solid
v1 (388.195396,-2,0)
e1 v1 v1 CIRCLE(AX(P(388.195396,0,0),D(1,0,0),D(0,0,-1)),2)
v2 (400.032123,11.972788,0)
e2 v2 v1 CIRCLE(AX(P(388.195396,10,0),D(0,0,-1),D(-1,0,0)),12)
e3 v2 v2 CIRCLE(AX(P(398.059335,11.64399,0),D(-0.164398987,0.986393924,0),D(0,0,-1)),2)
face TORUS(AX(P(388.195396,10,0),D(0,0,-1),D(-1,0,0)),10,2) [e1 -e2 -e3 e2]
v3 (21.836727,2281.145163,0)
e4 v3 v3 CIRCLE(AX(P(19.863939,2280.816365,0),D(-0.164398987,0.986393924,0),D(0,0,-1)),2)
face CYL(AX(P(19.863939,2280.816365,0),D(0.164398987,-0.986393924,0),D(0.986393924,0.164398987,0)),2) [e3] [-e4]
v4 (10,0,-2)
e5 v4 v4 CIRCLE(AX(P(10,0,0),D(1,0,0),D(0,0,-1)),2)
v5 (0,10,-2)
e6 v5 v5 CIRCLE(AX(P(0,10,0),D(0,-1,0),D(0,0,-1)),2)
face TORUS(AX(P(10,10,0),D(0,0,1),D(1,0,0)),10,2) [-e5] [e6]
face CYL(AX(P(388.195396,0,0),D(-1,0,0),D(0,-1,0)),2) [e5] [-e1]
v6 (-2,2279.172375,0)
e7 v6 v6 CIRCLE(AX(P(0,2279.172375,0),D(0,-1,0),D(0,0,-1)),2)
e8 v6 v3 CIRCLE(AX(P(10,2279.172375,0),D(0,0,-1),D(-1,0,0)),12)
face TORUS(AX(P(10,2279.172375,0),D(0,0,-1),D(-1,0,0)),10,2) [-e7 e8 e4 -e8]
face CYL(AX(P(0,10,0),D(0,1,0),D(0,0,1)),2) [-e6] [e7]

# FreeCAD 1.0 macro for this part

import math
import FreeCAD as App
import Part
import Sketcher
Q = App.Units.Quantity

doc = App.newDocument("Part")
body = doc.addObject("PartDesign::Body", "Body")

# Sketch on YZ plane
sketch1 = body.newObject("Sketcher::SketchObject", "Sketch")
sketch1.AttachmentSupport = (doc.getObject("YZ_Plane"), [""])
sketch1.MapMode = "FlatFace"
sketch1.AttachmentOffset = App.Placement(App.Vector(0, 0, 10), App.Rotation())
sketch1.addGeometry(Part.Circle(App.Vector(0, 0, 0), App.Vector(0, 0, 1), 2), False)
sketch1.addConstraint([
    Sketcher.Constraint("Coincident", 0, 3, -1, 1),
    Sketcher.Constraint("Diameter", 0, Q("4 mm")),
])

# Sketch on XY plane
sketch2 = body.newObject("Sketcher::SketchObject", "Sketch001")
sketch2.AttachmentSupport = (doc.getObject("XY_Plane"), [""])
sketch2.MapMode = "FlatFace"
sketch2.addGeometry([
    Part.LineSegment(App.Vector(0, 10, 0), App.Vector(0, 2279, 0)),  # 0
    Part.ArcOfCircle(Part.Circle(App.Vector(10, 2279, 0), App.Vector(0, 0, 1), 10), math.radians(9), math.radians(180)),  # 1
    Part.LineSegment(App.Vector(20, 2281, 0), App.Vector(398, 12, 0)),  # 2
    Part.ArcOfCircle(Part.Circle(App.Vector(388, 10, 0), App.Vector(0, 0, 1), 10), math.radians(-90), math.radians(9)),  # 3
    Part.LineSegment(App.Vector(388, 0, 0), App.Vector(10, 0, 0)),  # 4
    Part.ArcOfCircle(Part.Circle(App.Vector(10, 10, 0), App.Vector(0, 0, 1), 10), math.radians(180), math.radians(270)),  # 5
], False)
sketch2.addConstraint([
    Sketcher.Constraint("Tangent", 0, 2, 1, 2),
    Sketcher.Constraint("Tangent", 1, 1, 2, 1),
    Sketcher.Constraint("Tangent", 2, 2, 3, 2),
    Sketcher.Constraint("Tangent", 3, 1, 4, 1),
    Sketcher.Constraint("Tangent", 4, 2, 5, 2),
    Sketcher.Constraint("Tangent", 5, 1, 0, 1),
    Sketcher.Constraint("Vertical", 0),
    Sketcher.Constraint("Horizontal", 4),
    Sketcher.Constraint("Equal", 1, 3),
    Sketcher.Constraint("Equal", 3, 5),
    Sketcher.Constraint("PointOnObject", 0, 2, -2),
    Sketcher.Constraint("PointOnObject", 3, 1, -1),
    Sketcher.Constraint("Radius", 1, Q("10 mm")),
    Sketcher.Constraint("DistanceX", 4, 2, 4, 1, Q("378.195396 mm")),
    Sketcher.Constraint("DistanceY", 0, 1, 0, 2, Q("2269.172375 mm")),
])
doc.recompute()

additivepipe = body.newObject("PartDesign::AdditivePipe", "AdditivePipe")
additivepipe.Profile = sketch1
additivepipe.Spine = (sketch2, ["Edge1", "Edge2", "Edge3", "Edge4", "Edge5", "Edge6"])

doc.recompute()
